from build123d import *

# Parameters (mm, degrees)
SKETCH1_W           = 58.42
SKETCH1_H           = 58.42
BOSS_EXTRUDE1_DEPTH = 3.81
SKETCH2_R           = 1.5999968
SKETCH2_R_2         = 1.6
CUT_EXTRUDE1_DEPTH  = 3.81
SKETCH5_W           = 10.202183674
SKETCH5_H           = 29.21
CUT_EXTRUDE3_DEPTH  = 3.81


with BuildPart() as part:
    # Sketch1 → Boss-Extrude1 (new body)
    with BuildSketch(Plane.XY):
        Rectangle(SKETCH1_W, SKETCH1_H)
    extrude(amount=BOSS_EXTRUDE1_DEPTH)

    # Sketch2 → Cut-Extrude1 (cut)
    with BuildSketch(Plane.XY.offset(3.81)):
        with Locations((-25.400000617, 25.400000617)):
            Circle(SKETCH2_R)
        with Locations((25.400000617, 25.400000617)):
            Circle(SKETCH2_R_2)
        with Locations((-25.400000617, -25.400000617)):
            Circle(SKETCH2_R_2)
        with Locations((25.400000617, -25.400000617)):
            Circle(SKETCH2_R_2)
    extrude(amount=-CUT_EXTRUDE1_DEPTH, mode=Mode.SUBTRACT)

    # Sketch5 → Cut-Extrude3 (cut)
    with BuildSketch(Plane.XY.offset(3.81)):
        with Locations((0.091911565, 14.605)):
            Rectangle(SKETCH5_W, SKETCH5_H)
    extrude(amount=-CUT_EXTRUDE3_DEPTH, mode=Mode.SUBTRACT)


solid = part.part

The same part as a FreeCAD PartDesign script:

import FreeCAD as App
import Part
import Sketcher
Q = App.Units.Quantity


def add_polygon(sketch, points):
    """Adds a closed chain of lines whose ends are joined by coincident constraints."""
    first, n = sketch.GeometryCount, len(points)
    for a, b in zip(points, points[1:] + points[:1]):
        sketch.addGeometry(Part.LineSegment(App.Vector(*a, 0), App.Vector(*b, 0)), False)
    for i in range(n):
        sketch.addConstraint(Sketcher.Constraint("Coincident", first + i, 2, first + (i + 1) % n, 1))

doc = App.newDocument("Part")
body = doc.addObject("PartDesign::Body", "Body")

# Sketch on XY plane
sketch1 = body.newObject("Sketcher::SketchObject", "Sketch")
sketch1.AttachmentSupport = (doc.getObject("XY_Plane"), [""])
sketch1.MapMode = "FlatFace"
add_polygon(sketch1, [(-29, 29), (-29, -29), (29, -29), (29, 29)])  # lines 0-3
sketch1.addConstraint(Sketcher.Constraint("Vertical", 0))
sketch1.addConstraint(Sketcher.Constraint("Horizontal", 1))
sketch1.addConstraint(Sketcher.Constraint("Vertical", 2))
sketch1.addConstraint(Sketcher.Constraint("Horizontal", 3))
sketch1.addConstraint(Sketcher.Constraint("Symmetric", 0, 2, 2, 2, -1, 1))
sketch1.addConstraint(Sketcher.Constraint("Equal", 3, 0))
sketch1.addConstraint(Sketcher.Constraint("DistanceX", 1, 1, 1, 2, Q("2.3 in")))
pad1 = body.newObject("PartDesign::Pad", "Pad")
pad1.Profile = sketch1
pad1.Length = Q("0.15 in")

# Sketch on XY plane
sketch2 = body.newObject("Sketcher::SketchObject", "Sketch001")
sketch2.AttachmentSupport = (doc.getObject("XY_Plane"), [""])
sketch2.MapMode = "FlatFace"
sketch2.AttachmentOffset = App.Placement(App.Vector(0, 0, 0.15 * 25.4), App.Rotation())
sketch2.addGeometry(Part.Circle(App.Vector(-25.4, 25.4, 0), App.Vector(0, 0, 1), 1.6), False)
sketch2.addGeometry(Part.Circle(App.Vector(25.4, 25.4, 0), App.Vector(0, 0, 1), 1.6), False)
sketch2.addGeometry(Part.Circle(App.Vector(-25.4, -25.4, 0), App.Vector(0, 0, 1), 1.6), False)
sketch2.addGeometry(Part.Circle(App.Vector(25.4, -25.4, 0), App.Vector(0, 0, 1), 1.6), False)
sketch2.addConstraint(Sketcher.Constraint("Equal", 1, 2))
sketch2.addConstraint(Sketcher.Constraint("Equal", 2, 3))
sketch2.addConstraint(Sketcher.Constraint("Symmetric", 1, 3, 2, 3, -1, 1))
sketch2.addConstraint(Sketcher.Constraint("Symmetric", 0, 3, 3, 3, -1, 1))
sketch2.addConstraint(Sketcher.Constraint("Symmetric", 0, 3, 1, 3, -2))
sketch2.addConstraint(Sketcher.Constraint("DistanceX", 0, 3, -1, 1, Q("1 in")))
sketch2.addConstraint(Sketcher.Constraint("DistanceY", -1, 1, 0, 3, Q("1 in")))
sketch2.addConstraint(Sketcher.Constraint("Diameter", 1, 3.2))
sketch2.addConstraint(Sketcher.Constraint("Diameter", 0, 3.199994))
pocket1 = body.newObject("PartDesign::Pocket", "Pocket")
pocket1.Profile = sketch2
pocket1.Length = Q("0.15 in")

# Sketch on XY plane
sketch3 = body.newObject("Sketcher::SketchObject", "Sketch002")
sketch3.AttachmentSupport = (doc.getObject("XY_Plane"), [""])
sketch3.MapMode = "FlatFace"
sketch3.AttachmentOffset = App.Placement(App.Vector(0, 0, 0.15 * 25.4), App.Rotation())
add_polygon(sketch3, [(-5, 29), (-5, 0), (5, 0), (5, 29)])  # lines 0-3
sketch3.addConstraint(Sketcher.Constraint("Vertical", 0))
sketch3.addConstraint(Sketcher.Constraint("Horizontal", 1))
sketch3.addConstraint(Sketcher.Constraint("Vertical", 2))
sketch3.addConstraint(Sketcher.Constraint("Horizontal", 3))
sketch3.addConstraint(Sketcher.Constraint("PointOnObject", 0, 2, -1))
sketch3.addConstraint(Sketcher.Constraint("DistanceY", 0, 2, 0, 1, Q("1.15 in")))
sketch3.addConstraint(Sketcher.Constraint("DistanceX", 1, 1, 1, 2, 10.202184))
sketch3.addConstraint(Sketcher.Constraint("DistanceX", 0, 2, -1, 1, 5.00918))
pocket2 = body.newObject("PartDesign::Pocket", "Pocket001")
pocket2.Profile = sketch3
pocket2.Length = Q("0.15 in")

doc.recompute()
